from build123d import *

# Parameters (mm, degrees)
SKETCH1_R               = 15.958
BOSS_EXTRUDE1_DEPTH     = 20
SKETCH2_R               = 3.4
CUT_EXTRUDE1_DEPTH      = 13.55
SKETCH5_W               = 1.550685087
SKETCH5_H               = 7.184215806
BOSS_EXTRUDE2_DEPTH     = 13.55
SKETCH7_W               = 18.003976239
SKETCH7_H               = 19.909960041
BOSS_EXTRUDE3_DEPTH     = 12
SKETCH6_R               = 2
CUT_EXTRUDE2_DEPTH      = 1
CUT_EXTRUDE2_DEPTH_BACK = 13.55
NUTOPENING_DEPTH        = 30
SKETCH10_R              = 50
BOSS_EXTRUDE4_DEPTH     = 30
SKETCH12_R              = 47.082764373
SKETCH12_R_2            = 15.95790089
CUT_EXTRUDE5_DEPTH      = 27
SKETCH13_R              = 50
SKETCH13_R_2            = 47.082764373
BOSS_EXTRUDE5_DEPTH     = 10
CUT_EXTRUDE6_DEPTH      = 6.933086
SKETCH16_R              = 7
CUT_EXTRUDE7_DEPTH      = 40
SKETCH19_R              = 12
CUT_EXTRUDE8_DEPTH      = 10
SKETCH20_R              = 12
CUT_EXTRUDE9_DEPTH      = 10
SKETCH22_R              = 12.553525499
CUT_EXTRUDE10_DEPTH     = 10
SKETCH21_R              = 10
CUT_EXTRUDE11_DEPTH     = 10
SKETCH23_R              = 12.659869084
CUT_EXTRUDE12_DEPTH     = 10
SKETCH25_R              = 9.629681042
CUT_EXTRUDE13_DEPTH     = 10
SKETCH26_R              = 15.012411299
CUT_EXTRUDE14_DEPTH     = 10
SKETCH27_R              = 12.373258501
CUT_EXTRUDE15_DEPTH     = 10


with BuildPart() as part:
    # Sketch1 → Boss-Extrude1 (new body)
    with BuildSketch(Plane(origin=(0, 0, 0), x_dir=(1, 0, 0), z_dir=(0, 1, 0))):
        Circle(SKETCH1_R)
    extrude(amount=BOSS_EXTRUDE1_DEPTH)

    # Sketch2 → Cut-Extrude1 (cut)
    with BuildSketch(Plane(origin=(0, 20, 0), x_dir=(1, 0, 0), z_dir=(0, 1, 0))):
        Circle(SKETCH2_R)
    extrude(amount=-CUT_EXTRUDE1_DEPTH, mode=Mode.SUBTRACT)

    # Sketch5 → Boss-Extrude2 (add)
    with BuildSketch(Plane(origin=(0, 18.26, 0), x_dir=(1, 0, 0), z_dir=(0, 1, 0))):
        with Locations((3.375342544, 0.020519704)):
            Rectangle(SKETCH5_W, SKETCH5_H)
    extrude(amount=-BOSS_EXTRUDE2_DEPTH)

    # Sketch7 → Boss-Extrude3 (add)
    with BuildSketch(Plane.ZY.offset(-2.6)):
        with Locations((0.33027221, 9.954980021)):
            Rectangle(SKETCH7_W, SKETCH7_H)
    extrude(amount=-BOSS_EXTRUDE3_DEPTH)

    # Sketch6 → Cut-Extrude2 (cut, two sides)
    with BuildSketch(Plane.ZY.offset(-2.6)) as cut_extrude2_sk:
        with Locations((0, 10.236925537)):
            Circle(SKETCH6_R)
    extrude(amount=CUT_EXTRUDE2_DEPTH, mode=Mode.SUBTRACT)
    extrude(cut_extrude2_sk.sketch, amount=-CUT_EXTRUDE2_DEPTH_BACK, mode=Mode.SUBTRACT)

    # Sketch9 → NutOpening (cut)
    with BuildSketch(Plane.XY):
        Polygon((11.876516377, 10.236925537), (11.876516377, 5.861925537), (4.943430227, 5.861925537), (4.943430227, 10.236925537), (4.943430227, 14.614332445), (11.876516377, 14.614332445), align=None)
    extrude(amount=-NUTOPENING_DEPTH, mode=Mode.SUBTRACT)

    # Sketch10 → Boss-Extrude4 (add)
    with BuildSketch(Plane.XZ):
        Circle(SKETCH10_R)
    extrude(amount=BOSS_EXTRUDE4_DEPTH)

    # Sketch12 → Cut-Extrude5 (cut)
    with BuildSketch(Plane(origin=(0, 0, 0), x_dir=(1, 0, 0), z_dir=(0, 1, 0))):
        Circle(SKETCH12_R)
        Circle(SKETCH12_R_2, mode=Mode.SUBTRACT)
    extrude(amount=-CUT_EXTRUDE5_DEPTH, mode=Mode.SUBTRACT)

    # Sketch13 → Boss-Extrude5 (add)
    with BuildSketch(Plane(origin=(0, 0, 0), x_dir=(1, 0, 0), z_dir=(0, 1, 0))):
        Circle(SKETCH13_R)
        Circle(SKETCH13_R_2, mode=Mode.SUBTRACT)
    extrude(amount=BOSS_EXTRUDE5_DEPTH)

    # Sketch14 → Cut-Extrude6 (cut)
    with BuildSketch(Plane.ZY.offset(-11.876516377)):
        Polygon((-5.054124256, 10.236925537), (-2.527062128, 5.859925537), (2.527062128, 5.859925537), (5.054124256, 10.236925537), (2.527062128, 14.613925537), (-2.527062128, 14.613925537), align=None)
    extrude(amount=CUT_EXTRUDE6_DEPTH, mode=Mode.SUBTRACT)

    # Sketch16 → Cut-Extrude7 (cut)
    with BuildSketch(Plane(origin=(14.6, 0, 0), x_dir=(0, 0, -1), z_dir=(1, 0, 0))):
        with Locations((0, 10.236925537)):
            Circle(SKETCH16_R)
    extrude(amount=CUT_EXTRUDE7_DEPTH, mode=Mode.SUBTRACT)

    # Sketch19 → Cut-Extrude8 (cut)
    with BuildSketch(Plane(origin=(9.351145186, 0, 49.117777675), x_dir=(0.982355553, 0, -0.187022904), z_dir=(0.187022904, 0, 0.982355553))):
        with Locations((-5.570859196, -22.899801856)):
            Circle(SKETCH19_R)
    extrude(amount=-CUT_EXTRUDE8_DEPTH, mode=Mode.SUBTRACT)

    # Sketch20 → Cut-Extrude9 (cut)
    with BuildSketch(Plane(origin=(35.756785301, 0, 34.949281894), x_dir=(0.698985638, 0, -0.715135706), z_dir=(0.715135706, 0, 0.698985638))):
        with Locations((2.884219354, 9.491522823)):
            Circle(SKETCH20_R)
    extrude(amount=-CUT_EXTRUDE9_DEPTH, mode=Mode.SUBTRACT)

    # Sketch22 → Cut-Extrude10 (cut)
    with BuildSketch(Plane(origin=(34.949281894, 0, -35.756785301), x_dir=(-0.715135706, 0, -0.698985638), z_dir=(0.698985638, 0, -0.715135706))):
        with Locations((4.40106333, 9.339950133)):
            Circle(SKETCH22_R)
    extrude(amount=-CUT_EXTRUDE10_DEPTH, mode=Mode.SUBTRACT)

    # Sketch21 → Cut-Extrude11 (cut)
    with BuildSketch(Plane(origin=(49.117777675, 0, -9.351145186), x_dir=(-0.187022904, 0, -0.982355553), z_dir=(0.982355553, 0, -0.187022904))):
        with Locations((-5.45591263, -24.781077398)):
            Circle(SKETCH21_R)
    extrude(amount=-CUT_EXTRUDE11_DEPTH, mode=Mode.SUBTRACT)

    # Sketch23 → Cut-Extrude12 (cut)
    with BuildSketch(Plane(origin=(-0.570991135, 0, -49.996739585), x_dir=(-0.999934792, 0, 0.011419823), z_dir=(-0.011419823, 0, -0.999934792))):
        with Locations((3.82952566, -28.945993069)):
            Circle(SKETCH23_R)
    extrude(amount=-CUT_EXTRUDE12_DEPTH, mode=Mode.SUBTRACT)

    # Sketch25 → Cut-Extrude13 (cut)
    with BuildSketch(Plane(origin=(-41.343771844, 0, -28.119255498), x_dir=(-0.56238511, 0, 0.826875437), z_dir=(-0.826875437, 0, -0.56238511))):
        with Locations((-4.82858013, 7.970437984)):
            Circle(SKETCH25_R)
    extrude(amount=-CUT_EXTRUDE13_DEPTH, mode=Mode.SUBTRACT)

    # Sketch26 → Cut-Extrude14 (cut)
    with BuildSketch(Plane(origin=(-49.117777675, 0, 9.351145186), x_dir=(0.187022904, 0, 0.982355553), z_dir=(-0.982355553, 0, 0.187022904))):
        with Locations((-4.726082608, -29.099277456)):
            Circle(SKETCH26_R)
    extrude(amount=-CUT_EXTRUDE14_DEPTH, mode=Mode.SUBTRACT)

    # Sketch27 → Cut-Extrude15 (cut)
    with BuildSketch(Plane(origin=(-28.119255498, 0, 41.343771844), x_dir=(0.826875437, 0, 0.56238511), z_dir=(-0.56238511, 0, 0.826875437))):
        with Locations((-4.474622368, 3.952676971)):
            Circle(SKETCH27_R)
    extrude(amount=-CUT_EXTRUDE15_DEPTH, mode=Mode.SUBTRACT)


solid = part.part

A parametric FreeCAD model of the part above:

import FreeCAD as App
import Part
import Sketcher

V = App.Vector
Q = App.Units.Quantity

doc = App.newDocument("Part")
body = doc.addObject("PartDesign::Body", "Body")

# Sketch on XZ plane
sketch1 = body.newObject("Sketcher::SketchObject", "Sketch")
sketch1.AttachmentSupport = (doc.getObject("XZ_Plane"), [""])
sketch1.MapMode = "FlatFace"
sketch1.addGeometry(Part.Circle(V(0, 0, 0), V(0, 0, 1), 16), False)
sketch1.addConstraint([
    Sketcher.Constraint("Coincident", 0, 3, -1, 1),
    Sketcher.Constraint("Diameter", 0, Q("31.916 mm")),
])
pad1 = body.newObject("PartDesign::Pad", "Pad")
pad1.Profile = sketch1
pad1.Length = 20
pad1.Reversed = True

# Sketch on XZ plane
sketch2 = body.newObject("Sketcher::SketchObject", "Sketch001")
sketch2.AttachmentSupport = (doc.getObject("XZ_Plane"), [""])
sketch2.MapMode = "FlatFace"
sketch2.AttachmentOffset = App.Placement(V(0, 0, -20), App.Rotation())
sketch2.addGeometry(Part.Circle(V(0, 0, 0), V(0, 0, 1), 3.4), False)
sketch2.addConstraint([
    Sketcher.Constraint("Coincident", 0, 3, -1, 1),
    Sketcher.Constraint("Diameter", 0, Q("6.8 mm")),
])
pocket1 = body.newObject("PartDesign::Pocket", "Pocket")
pocket1.Profile = sketch2
pocket1.Length = 13.55
pocket1.Reversed = True

# Sketch on XZ plane
sketch3 = body.newObject("Sketcher::SketchObject", "Sketch002")
sketch3.AttachmentSupport = (doc.getObject("XZ_Plane"), [""])
sketch3.MapMode = "FlatFace"
sketch3.AttachmentOffset = App.Placement(V(0, 0, -18.26), App.Rotation())
sketch3.addGeometry([
    Part.LineSegment(V(2.6, -3.6, 0), V(2.6, 3.6, 0)),
    Part.LineSegment(V(2.6, 3.6, 0), V(4.2, 3.6, 0)),
    Part.LineSegment(V(4.2, 3.6, 0), V(4.2, -3.6, 0)),
    Part.LineSegment(V(4.2, -3.6, 0), V(2.6, -3.6, 0)),
], False)
sketch3.addConstraint([
    Sketcher.Constraint("Coincident", 0, 2, 1, 1),
    Sketcher.Constraint("Coincident", 1, 2, 2, 1),
    Sketcher.Constraint("Coincident", 2, 2, 3, 1),
    Sketcher.Constraint("Coincident", 3, 2, 0, 1),
    Sketcher.Constraint("Vertical", 0),
    Sketcher.Constraint("Horizontal", 1),
    Sketcher.Constraint("Vertical", 2),
    Sketcher.Constraint("Horizontal", 3),
    Sketcher.Constraint("DistanceX", -1, 1, 0, 2, Q("2.6 mm")),
    Sketcher.Constraint("DistanceX", 1, 1, 1, 2, Q("1.550685 mm")),
    Sketcher.Constraint("DistanceY", 0, 1, 0, 2, Q("7.184216 mm")),
    Sketcher.Constraint("DistanceY", -1, 1, 0, 2, Q("3.571588 mm")),
])
pad2 = body.newObject("PartDesign::Pad", "Pad001")
pad2.Profile = sketch3
pad2.Length = 13.55

# Sketch on YZ plane
sketch4 = body.newObject("Sketcher::SketchObject", "Sketch003")
sketch4.AttachmentSupport = (doc.getObject("YZ_Plane"), [""])
sketch4.MapMode = "FlatFace"
sketch4.AttachmentOffset = App.Placement(V(0, 0, 2.6), App.Rotation())
sketch4.addGeometry([
    Part.LineSegment(V(20, -9, 0), V(0, -9, 0)),
    Part.LineSegment(V(0, -9, 0), V(0, 9, 0)),
    Part.LineSegment(V(0, 9, 0), V(20, 9, 0)),
    Part.LineSegment(V(20, 9, 0), V(20, -9, 0)),
], False)
sketch4.addConstraint([
    Sketcher.Constraint("Coincident", 0, 2, 1, 1),
    Sketcher.Constraint("Coincident", 1, 2, 2, 1),
    Sketcher.Constraint("Coincident", 2, 2, 3, 1),
    Sketcher.Constraint("Coincident", 3, 2, 0, 1),
    Sketcher.Constraint("Horizontal", 0),
    Sketcher.Constraint("Vertical", 1),
    Sketcher.Constraint("Horizontal", 2),
    Sketcher.Constraint("Vertical", 3),
    Sketcher.Constraint("PointOnObject", 0, 2, -2),
    Sketcher.Constraint("DistanceX", 0, 2, 0, 1, Q("19.90996 mm")),
    Sketcher.Constraint("DistanceY", 1, 1, 1, 2, Q("18.003976 mm")),
    Sketcher.Constraint("DistanceY", -1, 1, 1, 2, Q("9.33226 mm")),
])
pad3 = body.newObject("PartDesign::Pad", "Pad002")
pad3.Profile = sketch4
pad3.Length = 12

# Sketch on YZ plane
sketch5 = body.newObject("Sketcher::SketchObject", "Sketch004")
sketch5.AttachmentSupport = (doc.getObject("YZ_Plane"), [""])
sketch5.MapMode = "FlatFace"
sketch5.AttachmentOffset = App.Placement(V(0, 0, 2.6), App.Rotation())
sketch5.addGeometry(Part.Circle(V(10.2, 0, 0), V(0, 0, 1), 2), False)
sketch5.addConstraint([
    Sketcher.Constraint("PointOnObject", 0, 3, -1),
    Sketcher.Constraint("Diameter", 0, Q("4 mm")),
    Sketcher.Constraint("DistanceX", -1, 1, 0, 3, Q("10.236926 mm")),
])
pocket2 = body.newObject("PartDesign::Pocket", "Pocket001")
pocket2.Profile = sketch5
pocket2.Type = "TwoLengths"
pocket2.Length = 1
pocket2.Length2 = 13.55

# Sketch on XY plane
sketch6 = body.newObject("Sketcher::SketchObject", "Sketch005")
sketch6.AttachmentSupport = (doc.getObject("XY_Plane"), [""])
sketch6.MapMode = "FlatFace"
sketch6.addGeometry([
    Part.LineSegment(V(12, 6, 0), V(12, 15, 0)),
    Part.LineSegment(V(12, 15, 0), V(5, 15, 0)),
    Part.LineSegment(V(5, 15, 0), V(5, 6, 0)),
    Part.LineSegment(V(5, 6, 0), V(12, 6, 0)),
], False)
sketch6.addConstraint([
    Sketcher.Constraint("Coincident", 0, 2, 1, 1),
    Sketcher.Constraint("Coincident", 1, 2, 2, 1),
    Sketcher.Constraint("Coincident", 2, 2, 3, 1),
    Sketcher.Constraint("Coincident", 3, 2, 0, 1),
    Sketcher.Constraint("Vertical", 0),
    Sketcher.Constraint("Horizontal", 1),
    Sketcher.Constraint("Vertical", 2),
    Sketcher.Constraint("Horizontal", 3),
    Sketcher.Constraint("DistanceX", 1, 2, 1, 1, Q("6.933086 mm")),
    Sketcher.Constraint("DistanceY", 0, 1, 0, 2, Q("8.752407 mm")),
    Sketcher.Constraint("DistanceX", -1, 1, 1, 2, Q("4.94343 mm")),
    Sketcher.Constraint("DistanceY", -1, 1, 0, 2, Q("14.614332 mm")),
])
pocket3 = body.newObject("PartDesign::Pocket", "Pocket002")
pocket3.Profile = sketch6
pocket3.Length = 30

# Sketch on XZ plane
sketch7 = body.newObject("Sketcher::SketchObject", "Sketch006")
sketch7.AttachmentSupport = (doc.getObject("XZ_Plane"), [""])
sketch7.MapMode = "FlatFace"
sketch7.addGeometry(Part.Circle(V(0, 0, 0), V(0, 0, 1), 50), False)
sketch7.addConstraint([
    Sketcher.Constraint("Coincident", 0, 3, -1, 1),
    Sketcher.Constraint("Diameter", 0, Q("100 mm")),
])
pad4 = body.newObject("PartDesign::Pad", "Pad003")
pad4.Profile = sketch7
pad4.Length = 30

# Sketch on XZ plane
sketch8 = body.newObject("Sketcher::SketchObject", "Sketch007")
sketch8.AttachmentSupport = (doc.getObject("XZ_Plane"), [""])
sketch8.MapMode = "FlatFace"
sketch8.addGeometry([
    Part.Circle(V(0, 0, 0), V(0, 0, 1), 47),
    Part.Circle(V(0, 0, 0), V(0, 0, 1), 16),
], False)
sketch8.addConstraint([
    Sketcher.Constraint("Coincident", 0, 3, -1, 1),
    Sketcher.Constraint("Coincident", 1, 3, -1, 1),
    Sketcher.Constraint("Diameter", 1, Q("31.915802 mm")),
    Sketcher.Constraint("Diameter", 0, Q("94.165529 mm")),
])
pocket4 = body.newObject("PartDesign::Pocket", "Pocket003")
pocket4.Profile = sketch8
pocket4.Length = 27
pocket4.Reversed = True

# Sketch on XZ plane
sketch9 = body.newObject("Sketcher::SketchObject", "Sketch008")
sketch9.AttachmentSupport = (doc.getObject("XZ_Plane"), [""])
sketch9.MapMode = "FlatFace"
sketch9.addGeometry([
    Part.Circle(V(0, 0, 0), V(0, 0, 1), 50),
    Part.Circle(V(0, 0, 0), V(0, 0, 1), 47),
], False)
sketch9.addConstraint([
    Sketcher.Constraint("Coincident", 0, 3, -1, 1),
    Sketcher.Constraint("Coincident", 1, 3, -1, 1),
    Sketcher.Constraint("Diameter", 0, Q("100 mm")),
    Sketcher.Constraint("Diameter", 1, Q("94.165529 mm")),
])
pad5 = body.newObject("PartDesign::Pad", "Pad004")
pad5.Profile = sketch9
pad5.Length = 10
pad5.Reversed = True

# Sketch on YZ plane
sketch10 = body.newObject("Sketcher::SketchObject", "Sketch009")
sketch10.AttachmentSupport = (doc.getObject("YZ_Plane"), [""])
sketch10.MapMode = "FlatFace"
sketch10.AttachmentOffset = App.Placement(V(0, 0, 11.876516), App.Rotation())
sketch10.addGeometry([
    Part.LineSegment(V(10, -5, 0), V(6, -3, 0)),  # 0
    Part.LineSegment(V(6, -3, 0), V(6, 3, 0)),  # 1
    Part.LineSegment(V(6, 3, 0), V(10, 5, 0)),  # 2
    Part.LineSegment(V(10, 5, 0), V(15, 3, 0)),  # 3
    Part.LineSegment(V(15, 3, 0), V(15, -3, 0)),  # 4
    Part.LineSegment(V(15, -3, 0), V(10, -5, 0)),  # 5
], False)
sketch10.addConstraint([
    Sketcher.Constraint("Coincident", 0, 2, 1, 1),
    Sketcher.Constraint("Coincident", 1, 2, 2, 1),
    Sketcher.Constraint("Coincident", 2, 2, 3, 1),
    Sketcher.Constraint("Coincident", 3, 2, 4, 1),
    Sketcher.Constraint("Coincident", 4, 2, 5, 1),
    Sketcher.Constraint("Coincident", 5, 2, 0, 1),
    Sketcher.Constraint("Vertical", 1),
    Sketcher.Constraint("Vertical", 4),
    Sketcher.Constraint("Symmetric", 2, 2, 5, 2, -1),
    Sketcher.Constraint("Parallel", 0, 3),
    Sketcher.Constraint("Parallel", 2, 5),
    Sketcher.Constraint("Horizontal", 1, 2, 3, 2),
    Sketcher.Constraint("Horizontal", 0, 2, 4, 2),
    Sketcher.Constraint("Angle", 0, Q("150 deg")),
    Sketcher.Constraint("DistanceX", 1, 2, 2, 2, Q("4.377 mm")),
    Sketcher.Constraint("DistanceY", 1, 1, 1, 2, Q("5.054124 mm")),
    Sketcher.Constraint("DistanceX", -1, 1, 0, 2, Q("5.859926 mm")),
])
pocket5 = body.newObject("PartDesign::Pocket", "Pocket004")
pocket5.Profile = sketch10
pocket5.Length = 6.933086

# Sketch on YZ plane
sketch11 = body.newObject("Sketcher::SketchObject", "Sketch010")
sketch11.AttachmentSupport = (doc.getObject("YZ_Plane"), [""])
sketch11.MapMode = "FlatFace"
sketch11.AttachmentOffset = App.Placement(V(0, 0, 14.6), App.Rotation())
sketch11.addGeometry(Part.Circle(V(10, 0, 0), V(0, 0, 1), 7), False)
sketch11.addConstraint([
    Sketcher.Constraint("PointOnObject", 0, 3, -1),
    Sketcher.Constraint("Diameter", 0, Q("14 mm")),
    Sketcher.Constraint("DistanceX", -1, 1, 0, 3, Q("10.236926 mm")),
])
pocket6 = body.newObject("PartDesign::Pocket", "Pocket005")
pocket6.Profile = sketch11
pocket6.Length = 40
pocket6.Reversed = True

# Sketch on an angled plane
sketch12 = body.newObject("Sketcher::SketchObject", "Sketch011")
sketch12.Placement = App.Placement(V(9.351145, 0, 49.117778), App.Rotation(V(0.982355553, 0, -0.187022904), V(0, 0.999999999, 0), V(0.187022904, 0, 0.982355553), "ZXY"))
sketch12.addGeometry(Part.Circle(V(-6, -23, 0), V(0, 0, 1), 12), False)
sketch12.addConstraint([
    Sketcher.Constraint("Diameter", 0, Q("24 mm")),
    Sketcher.Constraint("DistanceY", 0, 3, -1, 1, Q("22.899802 mm")),
    Sketcher.Constraint("DistanceX", 0, 3, -1, 1, Q("5.570859 mm")),
])
pocket7 = body.newObject("PartDesign::Pocket", "Pocket006")
pocket7.Profile = sketch12
pocket7.Length = 10

# Sketch on an angled plane
sketch13 = body.newObject("Sketcher::SketchObject", "Sketch012")
sketch13.Placement = App.Placement(V(35.756785, 0, 34.949282), App.Rotation(V(0.698985638, 0, -0.715135706), V(0, 1, 0), V(0.715135706, 0, 0.698985638), "ZXY"))
sketch13.addGeometry(Part.Circle(V(3, 9, 0), V(0, 0, 1), 12), False)
sketch13.addConstraint([
    Sketcher.Constraint("Diameter", 0, Q("24 mm")),
    Sketcher.Constraint("DistanceX", -1, 1, 0, 3, Q("2.884219 mm")),
    Sketcher.Constraint("DistanceY", -1, 1, 0, 3, Q("9.491523 mm")),
])
pocket8 = body.newObject("PartDesign::Pocket", "Pocket007")
pocket8.Profile = sketch13
pocket8.Length = 10

# Sketch on an angled plane
sketch14 = body.newObject("Sketcher::SketchObject", "Sketch013")
sketch14.Placement = App.Placement(V(34.949282, 0, -35.756785), App.Rotation(V(-0.715135706, 0, -0.698985638), V(0, 1, 0), V(0.698985638, 0, -0.715135706), "ZXY"))
sketch14.addGeometry(Part.Circle(V(4, 9, 0), V(0, 0, 1), 13), False)
sketch14.addConstraint([
    Sketcher.Constraint("Diameter", 0, Q("25.107051 mm")),
    Sketcher.Constraint("DistanceY", -1, 1, 0, 3, Q("9.33995 mm")),
    Sketcher.Constraint("DistanceX", -1, 1, 0, 3, Q("4.401063 mm")),
])
pocket9 = body.newObject("PartDesign::Pocket", "Pocket008")
pocket9.Profile = sketch14
pocket9.Length = 10

# Sketch on an angled plane
sketch15 = body.newObject("Sketcher::SketchObject", "Sketch014")
sketch15.Placement = App.Placement(V(49.117778, 0, -9.351145), App.Rotation(V(-0.187022904, 0, -0.982355553), V(0, 0.999999999, 0), V(0.982355553, 0, -0.187022904), "ZXY"))
sketch15.addGeometry(Part.Circle(V(-5, -25, 0), V(0, 0, 1), 10), False)
sketch15.addConstraint([
    Sketcher.Constraint("Diameter", 0, Q("20 mm")),
    Sketcher.Constraint("DistanceX", 0, 3, -1, 1, Q("5.455913 mm")),
    Sketcher.Constraint("DistanceY", 0, 3, -1, 1, Q("24.781077 mm")),
])
pocket10 = body.newObject("PartDesign::Pocket", "Pocket009")
pocket10.Profile = sketch15
pocket10.Length = 10

# Sketch on an angled plane
sketch16 = body.newObject("Sketcher::SketchObject", "Sketch015")
sketch16.Placement = App.Placement(V(-0.570991, 0, -49.99674), App.Rotation(V(-0.999934792, 0, 0.011419823), V(0, 1.000000001, 0), V(-0.011419823, 0, -0.999934792), "ZXY"))
sketch16.addGeometry(Part.Circle(V(4, -29, 0), V(0, 0, 1), 13), False)
sketch16.addConstraint([
    Sketcher.Constraint("Diameter", 0, Q("25.319738 mm")),
    Sketcher.Constraint("DistanceX", -1, 1, 0, 3, Q("3.829526 mm")),
    Sketcher.Constraint("DistanceY", 0, 3, -1, 1, Q("28.945993 mm")),
])
pocket11 = body.newObject("PartDesign::Pocket", "Pocket010")
pocket11.Profile = sketch16
pocket11.Length = 10

# Sketch on an angled plane
sketch17 = body.newObject("Sketcher::SketchObject", "Sketch016")
sketch17.Placement = App.Placement(V(-41.343772, 0, -28.119255), App.Rotation(V(-0.56238511, 0, 0.826875437), V(0, 1, 0), V(-0.826875437, 0, -0.56238511), "ZXY"))
sketch17.addGeometry(Part.Circle(V(-5, 8, 0), V(0, 0, 1), 10), False)
sketch17.addConstraint([
    Sketcher.Constraint("Diameter", 0, Q("19.259362 mm")),
    Sketcher.Constraint("DistanceX", 0, 3, -1, 1, Q("4.82858 mm")),
    Sketcher.Constraint("DistanceY", -1, 1, 0, 3, Q("7.970438 mm")),
])
pocket12 = body.newObject("PartDesign::Pocket", "Pocket011")
pocket12.Profile = sketch17
pocket12.Length = 10

# Sketch on an angled plane
sketch18 = body.newObject("Sketcher::SketchObject", "Sketch017")
sketch18.Placement = App.Placement(V(-49.117778, 0, 9.351145), App.Rotation(V(0.187022904, 0, 0.982355553), V(0, 0.999999999, 0), V(-0.982355553, 0, 0.187022904), "ZXY"))
sketch18.addGeometry(Part.Circle(V(-5, -29, 0), V(0, 0, 1), 15), False)
sketch18.addConstraint([
    Sketcher.Constraint("Diameter", 0, Q("30.024823 mm")),
    Sketcher.Constraint("DistanceX", 0, 3, -1, 1, Q("4.726083 mm")),
    Sketcher.Constraint("DistanceY", 0, 3, -1, 1, Q("29.099277 mm")),
])
pocket13 = body.newObject("PartDesign::Pocket", "Pocket012")
pocket13.Profile = sketch18
pocket13.Length = 10

# Sketch on an angled plane
sketch19 = body.newObject("Sketcher::SketchObject", "Sketch018")
sketch19.Placement = App.Placement(V(-28.119255, 0, 41.343772), App.Rotation(V(0.826875437, 0, 0.56238511), V(0, 1, 0), V(-0.56238511, 0, 0.826875437), "ZXY"))
sketch19.addGeometry(Part.Circle(V(-4, 4, 0), V(0, 0, 1), 12), False)
sketch19.addConstraint([
    Sketcher.Constraint("Diameter", 0, Q("24.746517 mm")),
    Sketcher.Constraint("DistanceX", 0, 3, -1, 1, Q("4.474622 mm")),
    Sketcher.Constraint("DistanceY", -1, 1, 0, 3, Q("3.952677 mm")),
])
pocket14 = body.newObject("PartDesign::Pocket", "Pocket013")
pocket14.Profile = sketch19
pocket14.Length = 10

doc.recompute()
